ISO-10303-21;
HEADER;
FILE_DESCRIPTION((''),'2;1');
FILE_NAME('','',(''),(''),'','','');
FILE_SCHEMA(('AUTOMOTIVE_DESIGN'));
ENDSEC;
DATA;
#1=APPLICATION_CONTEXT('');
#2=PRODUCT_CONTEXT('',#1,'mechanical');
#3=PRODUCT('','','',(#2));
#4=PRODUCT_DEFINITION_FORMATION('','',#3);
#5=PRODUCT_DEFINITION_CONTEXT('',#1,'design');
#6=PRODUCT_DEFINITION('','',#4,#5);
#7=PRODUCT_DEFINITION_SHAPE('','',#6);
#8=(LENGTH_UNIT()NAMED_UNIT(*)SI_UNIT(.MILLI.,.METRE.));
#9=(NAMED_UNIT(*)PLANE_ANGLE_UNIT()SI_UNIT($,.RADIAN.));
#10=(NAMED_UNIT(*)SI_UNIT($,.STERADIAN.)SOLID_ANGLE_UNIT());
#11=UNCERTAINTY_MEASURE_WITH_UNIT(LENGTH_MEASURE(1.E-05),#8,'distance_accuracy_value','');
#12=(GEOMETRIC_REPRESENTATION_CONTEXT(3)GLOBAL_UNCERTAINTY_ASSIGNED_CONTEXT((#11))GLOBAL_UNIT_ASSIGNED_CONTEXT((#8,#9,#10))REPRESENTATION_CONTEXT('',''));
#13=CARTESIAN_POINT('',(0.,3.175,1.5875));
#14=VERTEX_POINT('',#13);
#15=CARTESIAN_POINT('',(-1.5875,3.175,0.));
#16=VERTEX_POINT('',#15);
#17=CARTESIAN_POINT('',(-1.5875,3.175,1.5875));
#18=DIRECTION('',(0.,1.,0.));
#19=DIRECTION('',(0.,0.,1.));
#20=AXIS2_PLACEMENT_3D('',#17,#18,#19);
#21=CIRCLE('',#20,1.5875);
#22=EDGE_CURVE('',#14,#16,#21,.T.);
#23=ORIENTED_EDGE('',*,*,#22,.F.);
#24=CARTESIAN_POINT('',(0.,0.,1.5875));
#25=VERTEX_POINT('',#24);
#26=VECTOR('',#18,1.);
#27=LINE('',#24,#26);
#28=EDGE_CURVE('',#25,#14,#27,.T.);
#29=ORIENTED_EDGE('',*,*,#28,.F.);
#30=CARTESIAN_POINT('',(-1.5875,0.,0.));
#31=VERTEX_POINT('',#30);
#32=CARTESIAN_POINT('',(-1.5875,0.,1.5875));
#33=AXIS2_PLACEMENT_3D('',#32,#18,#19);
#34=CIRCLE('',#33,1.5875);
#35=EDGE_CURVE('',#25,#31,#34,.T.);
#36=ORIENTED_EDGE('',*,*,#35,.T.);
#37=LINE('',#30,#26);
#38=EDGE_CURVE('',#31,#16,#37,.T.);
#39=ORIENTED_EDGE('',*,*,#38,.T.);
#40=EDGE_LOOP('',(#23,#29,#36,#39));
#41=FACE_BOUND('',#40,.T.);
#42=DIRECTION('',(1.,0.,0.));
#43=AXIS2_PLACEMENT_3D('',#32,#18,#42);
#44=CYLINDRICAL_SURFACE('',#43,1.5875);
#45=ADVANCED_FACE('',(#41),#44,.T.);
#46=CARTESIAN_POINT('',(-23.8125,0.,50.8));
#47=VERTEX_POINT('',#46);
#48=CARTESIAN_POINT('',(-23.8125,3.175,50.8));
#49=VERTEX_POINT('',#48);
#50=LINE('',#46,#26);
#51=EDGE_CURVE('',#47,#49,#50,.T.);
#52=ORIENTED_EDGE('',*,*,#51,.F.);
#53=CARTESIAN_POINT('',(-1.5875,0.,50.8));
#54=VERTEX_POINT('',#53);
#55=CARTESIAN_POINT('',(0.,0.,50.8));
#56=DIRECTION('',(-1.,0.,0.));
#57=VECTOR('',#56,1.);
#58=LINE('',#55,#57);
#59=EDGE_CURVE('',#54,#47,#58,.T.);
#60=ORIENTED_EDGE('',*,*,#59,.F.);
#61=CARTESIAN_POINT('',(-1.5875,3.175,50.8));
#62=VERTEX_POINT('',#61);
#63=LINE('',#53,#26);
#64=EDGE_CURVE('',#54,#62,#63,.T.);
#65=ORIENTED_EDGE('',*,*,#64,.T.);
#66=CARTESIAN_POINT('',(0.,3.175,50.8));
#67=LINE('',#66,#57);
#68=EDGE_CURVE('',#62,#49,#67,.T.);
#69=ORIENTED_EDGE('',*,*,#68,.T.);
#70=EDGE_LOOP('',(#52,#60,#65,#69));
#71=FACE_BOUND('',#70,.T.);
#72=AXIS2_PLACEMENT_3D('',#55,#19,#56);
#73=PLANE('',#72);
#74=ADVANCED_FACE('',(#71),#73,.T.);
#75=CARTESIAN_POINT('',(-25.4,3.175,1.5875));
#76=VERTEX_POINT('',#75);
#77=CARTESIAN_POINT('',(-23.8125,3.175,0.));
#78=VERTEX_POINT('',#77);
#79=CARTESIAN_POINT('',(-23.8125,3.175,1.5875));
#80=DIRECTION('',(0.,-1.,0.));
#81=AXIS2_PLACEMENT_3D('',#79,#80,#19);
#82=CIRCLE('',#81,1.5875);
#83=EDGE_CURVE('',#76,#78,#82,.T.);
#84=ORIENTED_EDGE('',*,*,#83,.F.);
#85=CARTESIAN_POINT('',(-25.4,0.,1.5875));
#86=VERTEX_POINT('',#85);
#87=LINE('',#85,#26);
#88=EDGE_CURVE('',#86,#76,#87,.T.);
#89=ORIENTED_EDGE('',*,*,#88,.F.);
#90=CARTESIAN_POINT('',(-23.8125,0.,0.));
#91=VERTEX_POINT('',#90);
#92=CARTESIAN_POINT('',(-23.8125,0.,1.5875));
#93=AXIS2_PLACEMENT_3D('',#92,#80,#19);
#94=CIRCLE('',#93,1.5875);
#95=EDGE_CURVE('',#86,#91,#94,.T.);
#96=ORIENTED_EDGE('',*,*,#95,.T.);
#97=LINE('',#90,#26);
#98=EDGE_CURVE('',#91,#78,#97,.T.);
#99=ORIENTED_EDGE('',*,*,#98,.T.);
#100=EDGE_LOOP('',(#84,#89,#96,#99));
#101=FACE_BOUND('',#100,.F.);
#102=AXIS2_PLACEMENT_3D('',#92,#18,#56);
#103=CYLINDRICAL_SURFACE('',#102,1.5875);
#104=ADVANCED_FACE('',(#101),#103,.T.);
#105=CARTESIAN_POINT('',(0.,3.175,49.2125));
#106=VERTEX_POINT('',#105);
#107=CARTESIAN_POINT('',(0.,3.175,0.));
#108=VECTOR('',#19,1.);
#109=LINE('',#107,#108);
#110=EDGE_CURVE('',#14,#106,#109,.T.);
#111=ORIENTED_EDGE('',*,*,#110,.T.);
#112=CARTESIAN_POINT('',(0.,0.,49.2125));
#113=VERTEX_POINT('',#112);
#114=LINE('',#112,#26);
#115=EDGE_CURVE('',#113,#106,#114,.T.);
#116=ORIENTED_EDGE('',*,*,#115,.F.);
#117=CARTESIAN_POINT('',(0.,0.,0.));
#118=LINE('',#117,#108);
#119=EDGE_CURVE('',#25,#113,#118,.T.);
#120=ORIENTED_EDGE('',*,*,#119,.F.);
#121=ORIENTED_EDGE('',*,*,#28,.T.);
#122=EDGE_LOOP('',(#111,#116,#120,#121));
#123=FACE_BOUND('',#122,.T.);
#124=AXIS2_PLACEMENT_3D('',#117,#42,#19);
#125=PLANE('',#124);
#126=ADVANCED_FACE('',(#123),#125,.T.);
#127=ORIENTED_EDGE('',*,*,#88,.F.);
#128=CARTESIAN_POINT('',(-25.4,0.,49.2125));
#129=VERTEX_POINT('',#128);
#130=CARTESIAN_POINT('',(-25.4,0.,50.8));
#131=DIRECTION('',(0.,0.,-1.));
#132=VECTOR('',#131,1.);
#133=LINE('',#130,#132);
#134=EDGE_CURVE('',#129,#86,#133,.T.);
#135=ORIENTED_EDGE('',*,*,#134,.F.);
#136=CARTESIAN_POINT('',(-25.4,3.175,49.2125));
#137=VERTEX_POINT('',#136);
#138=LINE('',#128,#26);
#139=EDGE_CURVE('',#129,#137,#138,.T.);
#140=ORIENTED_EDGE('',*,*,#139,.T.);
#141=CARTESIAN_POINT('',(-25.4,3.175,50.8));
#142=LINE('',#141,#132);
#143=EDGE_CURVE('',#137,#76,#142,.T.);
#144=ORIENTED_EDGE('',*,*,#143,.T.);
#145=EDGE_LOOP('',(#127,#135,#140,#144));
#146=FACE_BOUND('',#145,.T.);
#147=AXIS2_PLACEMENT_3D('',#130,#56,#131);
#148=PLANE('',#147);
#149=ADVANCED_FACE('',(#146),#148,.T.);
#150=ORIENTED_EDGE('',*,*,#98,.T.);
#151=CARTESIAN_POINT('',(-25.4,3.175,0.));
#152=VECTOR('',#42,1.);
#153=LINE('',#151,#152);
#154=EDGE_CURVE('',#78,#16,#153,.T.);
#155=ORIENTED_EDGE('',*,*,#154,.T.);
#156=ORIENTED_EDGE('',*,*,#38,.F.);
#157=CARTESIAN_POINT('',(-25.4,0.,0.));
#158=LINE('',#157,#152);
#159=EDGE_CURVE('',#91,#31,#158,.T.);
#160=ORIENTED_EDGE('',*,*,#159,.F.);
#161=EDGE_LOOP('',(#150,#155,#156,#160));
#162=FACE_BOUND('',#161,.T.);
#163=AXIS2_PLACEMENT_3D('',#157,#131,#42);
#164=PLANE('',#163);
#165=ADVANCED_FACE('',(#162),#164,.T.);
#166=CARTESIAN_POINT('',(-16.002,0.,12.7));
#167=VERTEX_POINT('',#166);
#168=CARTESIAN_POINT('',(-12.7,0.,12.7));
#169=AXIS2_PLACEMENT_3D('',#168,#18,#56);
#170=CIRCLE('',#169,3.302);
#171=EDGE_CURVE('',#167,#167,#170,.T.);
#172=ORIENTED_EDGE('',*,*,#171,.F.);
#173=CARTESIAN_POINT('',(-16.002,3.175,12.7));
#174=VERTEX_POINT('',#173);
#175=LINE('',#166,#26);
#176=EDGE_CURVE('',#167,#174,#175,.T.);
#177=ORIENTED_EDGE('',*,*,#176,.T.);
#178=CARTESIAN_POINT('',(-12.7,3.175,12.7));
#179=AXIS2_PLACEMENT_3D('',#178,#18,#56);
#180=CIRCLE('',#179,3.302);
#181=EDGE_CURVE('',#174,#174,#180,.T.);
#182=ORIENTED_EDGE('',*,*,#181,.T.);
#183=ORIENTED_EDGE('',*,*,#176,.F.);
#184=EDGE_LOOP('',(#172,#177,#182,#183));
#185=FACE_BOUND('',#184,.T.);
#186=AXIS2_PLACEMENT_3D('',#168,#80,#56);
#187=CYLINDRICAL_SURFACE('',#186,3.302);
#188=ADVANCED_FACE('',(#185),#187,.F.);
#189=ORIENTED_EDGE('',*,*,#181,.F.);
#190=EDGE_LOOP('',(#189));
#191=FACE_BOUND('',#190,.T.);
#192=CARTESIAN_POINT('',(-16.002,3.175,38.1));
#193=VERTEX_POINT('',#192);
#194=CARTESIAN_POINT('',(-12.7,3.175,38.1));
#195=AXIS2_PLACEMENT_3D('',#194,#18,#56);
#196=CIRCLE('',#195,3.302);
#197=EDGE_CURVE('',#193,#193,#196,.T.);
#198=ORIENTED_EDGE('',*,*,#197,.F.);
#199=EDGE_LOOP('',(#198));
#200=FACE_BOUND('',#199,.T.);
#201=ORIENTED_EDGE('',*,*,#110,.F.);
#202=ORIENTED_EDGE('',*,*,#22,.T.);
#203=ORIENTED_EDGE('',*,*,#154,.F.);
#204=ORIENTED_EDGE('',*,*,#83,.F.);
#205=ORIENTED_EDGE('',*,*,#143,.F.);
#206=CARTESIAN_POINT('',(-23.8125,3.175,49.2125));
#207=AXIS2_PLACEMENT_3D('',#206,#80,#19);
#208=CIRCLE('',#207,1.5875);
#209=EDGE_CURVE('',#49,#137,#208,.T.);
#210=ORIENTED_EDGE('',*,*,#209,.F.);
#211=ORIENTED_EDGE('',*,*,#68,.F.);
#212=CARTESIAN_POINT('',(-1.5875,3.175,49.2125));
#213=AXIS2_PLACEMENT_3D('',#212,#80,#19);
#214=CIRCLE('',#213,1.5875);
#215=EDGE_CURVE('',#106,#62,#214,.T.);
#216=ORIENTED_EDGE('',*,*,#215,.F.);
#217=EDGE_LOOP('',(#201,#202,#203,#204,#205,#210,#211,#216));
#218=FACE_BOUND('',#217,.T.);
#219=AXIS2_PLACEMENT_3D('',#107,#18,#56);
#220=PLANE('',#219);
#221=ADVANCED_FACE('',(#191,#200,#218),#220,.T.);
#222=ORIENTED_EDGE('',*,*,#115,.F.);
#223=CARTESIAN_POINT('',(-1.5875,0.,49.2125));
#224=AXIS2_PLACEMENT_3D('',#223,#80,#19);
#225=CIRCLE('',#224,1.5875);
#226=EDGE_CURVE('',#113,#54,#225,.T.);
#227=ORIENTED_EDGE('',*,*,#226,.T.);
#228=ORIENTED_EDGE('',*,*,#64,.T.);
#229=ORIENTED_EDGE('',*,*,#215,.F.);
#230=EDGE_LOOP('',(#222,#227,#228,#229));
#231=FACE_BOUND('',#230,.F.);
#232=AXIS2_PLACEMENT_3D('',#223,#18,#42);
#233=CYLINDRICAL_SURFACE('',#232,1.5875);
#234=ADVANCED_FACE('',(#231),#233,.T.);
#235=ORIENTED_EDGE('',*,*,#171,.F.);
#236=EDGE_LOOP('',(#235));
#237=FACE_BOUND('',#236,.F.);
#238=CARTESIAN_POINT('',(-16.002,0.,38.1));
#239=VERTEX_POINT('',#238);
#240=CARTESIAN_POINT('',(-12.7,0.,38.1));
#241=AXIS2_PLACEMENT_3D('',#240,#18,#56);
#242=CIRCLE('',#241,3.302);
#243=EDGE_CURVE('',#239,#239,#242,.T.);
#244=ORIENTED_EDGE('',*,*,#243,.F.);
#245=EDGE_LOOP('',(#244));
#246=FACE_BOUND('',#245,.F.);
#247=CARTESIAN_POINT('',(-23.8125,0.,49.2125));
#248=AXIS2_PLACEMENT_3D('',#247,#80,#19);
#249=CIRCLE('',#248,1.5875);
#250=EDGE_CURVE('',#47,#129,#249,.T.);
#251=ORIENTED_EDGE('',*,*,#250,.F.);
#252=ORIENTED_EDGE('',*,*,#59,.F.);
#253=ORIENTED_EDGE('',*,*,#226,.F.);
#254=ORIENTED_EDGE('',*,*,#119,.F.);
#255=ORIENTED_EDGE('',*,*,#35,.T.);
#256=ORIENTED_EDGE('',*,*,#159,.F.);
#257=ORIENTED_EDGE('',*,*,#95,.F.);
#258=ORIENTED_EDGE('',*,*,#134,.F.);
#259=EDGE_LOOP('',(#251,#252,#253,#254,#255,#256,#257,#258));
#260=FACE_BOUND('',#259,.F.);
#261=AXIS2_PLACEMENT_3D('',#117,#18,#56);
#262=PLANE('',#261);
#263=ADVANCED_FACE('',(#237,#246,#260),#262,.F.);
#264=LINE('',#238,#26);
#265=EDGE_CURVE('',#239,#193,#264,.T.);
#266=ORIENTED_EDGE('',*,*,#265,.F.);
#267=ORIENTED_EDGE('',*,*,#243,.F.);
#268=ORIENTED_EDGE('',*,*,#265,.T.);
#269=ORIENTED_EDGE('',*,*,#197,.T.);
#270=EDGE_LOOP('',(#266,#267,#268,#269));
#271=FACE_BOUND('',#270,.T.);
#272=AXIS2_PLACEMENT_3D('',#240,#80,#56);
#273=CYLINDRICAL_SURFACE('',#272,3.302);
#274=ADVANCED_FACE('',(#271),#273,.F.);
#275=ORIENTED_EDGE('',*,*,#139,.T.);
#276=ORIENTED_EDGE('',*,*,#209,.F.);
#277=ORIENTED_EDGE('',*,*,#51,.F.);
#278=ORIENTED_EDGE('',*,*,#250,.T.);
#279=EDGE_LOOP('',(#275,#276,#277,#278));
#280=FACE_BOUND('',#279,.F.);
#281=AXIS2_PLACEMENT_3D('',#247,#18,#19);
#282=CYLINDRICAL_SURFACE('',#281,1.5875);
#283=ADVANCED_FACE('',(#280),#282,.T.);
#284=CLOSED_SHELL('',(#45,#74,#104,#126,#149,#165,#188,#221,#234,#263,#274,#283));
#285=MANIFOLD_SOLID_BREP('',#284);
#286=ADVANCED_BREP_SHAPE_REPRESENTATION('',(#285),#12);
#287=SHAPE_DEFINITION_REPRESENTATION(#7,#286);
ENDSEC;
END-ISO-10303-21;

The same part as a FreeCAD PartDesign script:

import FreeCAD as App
import Part
import Sketcher
Q = App.Units.Quantity


def edges_at(feature, points):
    """Names of the edges that pass closest to the given points."""
    edges = feature.Shape.Edges
    near = lambda p: min(range(len(edges)), key=lambda i: edges[i].distToShape(Part.Vertex(*p))[0])
    return sorted({f"Edge{near(p) + 1}" for p in points})


def add_polygon(sketch, points):
    """Adds a closed chain of lines whose ends are joined by coincident constraints."""
    first, n = sketch.GeometryCount, len(points)
    for a, b in zip(points, points[1:] + points[:1]):
        sketch.addGeometry(Part.LineSegment(App.Vector(*a, 0), App.Vector(*b, 0)), False)
    for i in range(n):
        sketch.addConstraint(Sketcher.Constraint("Coincident", first + i, 2, first + (i + 1) % n, 1))

doc = App.newDocument("Part")
body = doc.addObject("PartDesign::Body", "Body")

sketch1 = doc.addObject("Sketcher::SketchObject", "Sketch")
body.addObject(sketch1)
sketch1.AttachmentSupport = (doc.XZ_Plane, [""])
sketch1.MapMode = "FlatFace"
add_polygon(sketch1, [(0, 50.8), (0, 0), (-25.4, 0), (-25.4, 50.8)])
sketch1.addGeometry(Part.Circle(App.Vector(-12.7, 12.7, 0), App.Vector(0, 0, 1), 3.3), False)
sketch1.addGeometry(Part.Circle(App.Vector(-12.7, 38.1, 0), App.Vector(0, 0, 1), 3.3), False)
sketch1.addConstraint([
    Sketcher.Constraint("Vertical", 0),
    Sketcher.Constraint("Horizontal", 1),
    Sketcher.Constraint("Vertical", 2),
    Sketcher.Constraint("Horizontal", 3),
    Sketcher.Constraint("Coincident", 0, 2, -1, 1),
    Sketcher.Constraint("Equal", 4, 5),
    Sketcher.Constraint("Vertical", 4, 3, 5, 3),
    Sketcher.Constraint("Diameter", 4, Q("0.26 in")),
    Sketcher.Constraint("DistanceX", 1, 2, 1, 1, Q("1 in")),
    Sketcher.Constraint("DistanceY", 0, 2, 0, 1, Q("2 in")),
    Sketcher.Constraint("DistanceY", 4, 3, 5, 3, Q("1 in")),
    Sketcher.Constraint("DistanceX", 4, 3, -1, 1, Q("0.5 in")),
    Sketcher.Constraint("DistanceY", -1, 1, 4, 3, Q("0.5 in")),
])
pad1 = doc.addObject("PartDesign::Pad", "Pad")
body.addObject(pad1)
pad1.Profile = sketch1
pad1.Length = Q("0.125 in")
pad1.Reversed = True
doc.recompute()

fillet = doc.addObject("PartDesign::Fillet", "Fillet")
body.addObject(fillet)
fillet.Base = (pad1, edges_at(pad1, [
    (-25.4, 1.587, 50.8),
    (0, 1.587, 50.8),
    (0, 1.587, 0),
    (-25.4, 1.587, 0),
]))
fillet.Radius = Q("0.0625 in")

doc.recompute()
